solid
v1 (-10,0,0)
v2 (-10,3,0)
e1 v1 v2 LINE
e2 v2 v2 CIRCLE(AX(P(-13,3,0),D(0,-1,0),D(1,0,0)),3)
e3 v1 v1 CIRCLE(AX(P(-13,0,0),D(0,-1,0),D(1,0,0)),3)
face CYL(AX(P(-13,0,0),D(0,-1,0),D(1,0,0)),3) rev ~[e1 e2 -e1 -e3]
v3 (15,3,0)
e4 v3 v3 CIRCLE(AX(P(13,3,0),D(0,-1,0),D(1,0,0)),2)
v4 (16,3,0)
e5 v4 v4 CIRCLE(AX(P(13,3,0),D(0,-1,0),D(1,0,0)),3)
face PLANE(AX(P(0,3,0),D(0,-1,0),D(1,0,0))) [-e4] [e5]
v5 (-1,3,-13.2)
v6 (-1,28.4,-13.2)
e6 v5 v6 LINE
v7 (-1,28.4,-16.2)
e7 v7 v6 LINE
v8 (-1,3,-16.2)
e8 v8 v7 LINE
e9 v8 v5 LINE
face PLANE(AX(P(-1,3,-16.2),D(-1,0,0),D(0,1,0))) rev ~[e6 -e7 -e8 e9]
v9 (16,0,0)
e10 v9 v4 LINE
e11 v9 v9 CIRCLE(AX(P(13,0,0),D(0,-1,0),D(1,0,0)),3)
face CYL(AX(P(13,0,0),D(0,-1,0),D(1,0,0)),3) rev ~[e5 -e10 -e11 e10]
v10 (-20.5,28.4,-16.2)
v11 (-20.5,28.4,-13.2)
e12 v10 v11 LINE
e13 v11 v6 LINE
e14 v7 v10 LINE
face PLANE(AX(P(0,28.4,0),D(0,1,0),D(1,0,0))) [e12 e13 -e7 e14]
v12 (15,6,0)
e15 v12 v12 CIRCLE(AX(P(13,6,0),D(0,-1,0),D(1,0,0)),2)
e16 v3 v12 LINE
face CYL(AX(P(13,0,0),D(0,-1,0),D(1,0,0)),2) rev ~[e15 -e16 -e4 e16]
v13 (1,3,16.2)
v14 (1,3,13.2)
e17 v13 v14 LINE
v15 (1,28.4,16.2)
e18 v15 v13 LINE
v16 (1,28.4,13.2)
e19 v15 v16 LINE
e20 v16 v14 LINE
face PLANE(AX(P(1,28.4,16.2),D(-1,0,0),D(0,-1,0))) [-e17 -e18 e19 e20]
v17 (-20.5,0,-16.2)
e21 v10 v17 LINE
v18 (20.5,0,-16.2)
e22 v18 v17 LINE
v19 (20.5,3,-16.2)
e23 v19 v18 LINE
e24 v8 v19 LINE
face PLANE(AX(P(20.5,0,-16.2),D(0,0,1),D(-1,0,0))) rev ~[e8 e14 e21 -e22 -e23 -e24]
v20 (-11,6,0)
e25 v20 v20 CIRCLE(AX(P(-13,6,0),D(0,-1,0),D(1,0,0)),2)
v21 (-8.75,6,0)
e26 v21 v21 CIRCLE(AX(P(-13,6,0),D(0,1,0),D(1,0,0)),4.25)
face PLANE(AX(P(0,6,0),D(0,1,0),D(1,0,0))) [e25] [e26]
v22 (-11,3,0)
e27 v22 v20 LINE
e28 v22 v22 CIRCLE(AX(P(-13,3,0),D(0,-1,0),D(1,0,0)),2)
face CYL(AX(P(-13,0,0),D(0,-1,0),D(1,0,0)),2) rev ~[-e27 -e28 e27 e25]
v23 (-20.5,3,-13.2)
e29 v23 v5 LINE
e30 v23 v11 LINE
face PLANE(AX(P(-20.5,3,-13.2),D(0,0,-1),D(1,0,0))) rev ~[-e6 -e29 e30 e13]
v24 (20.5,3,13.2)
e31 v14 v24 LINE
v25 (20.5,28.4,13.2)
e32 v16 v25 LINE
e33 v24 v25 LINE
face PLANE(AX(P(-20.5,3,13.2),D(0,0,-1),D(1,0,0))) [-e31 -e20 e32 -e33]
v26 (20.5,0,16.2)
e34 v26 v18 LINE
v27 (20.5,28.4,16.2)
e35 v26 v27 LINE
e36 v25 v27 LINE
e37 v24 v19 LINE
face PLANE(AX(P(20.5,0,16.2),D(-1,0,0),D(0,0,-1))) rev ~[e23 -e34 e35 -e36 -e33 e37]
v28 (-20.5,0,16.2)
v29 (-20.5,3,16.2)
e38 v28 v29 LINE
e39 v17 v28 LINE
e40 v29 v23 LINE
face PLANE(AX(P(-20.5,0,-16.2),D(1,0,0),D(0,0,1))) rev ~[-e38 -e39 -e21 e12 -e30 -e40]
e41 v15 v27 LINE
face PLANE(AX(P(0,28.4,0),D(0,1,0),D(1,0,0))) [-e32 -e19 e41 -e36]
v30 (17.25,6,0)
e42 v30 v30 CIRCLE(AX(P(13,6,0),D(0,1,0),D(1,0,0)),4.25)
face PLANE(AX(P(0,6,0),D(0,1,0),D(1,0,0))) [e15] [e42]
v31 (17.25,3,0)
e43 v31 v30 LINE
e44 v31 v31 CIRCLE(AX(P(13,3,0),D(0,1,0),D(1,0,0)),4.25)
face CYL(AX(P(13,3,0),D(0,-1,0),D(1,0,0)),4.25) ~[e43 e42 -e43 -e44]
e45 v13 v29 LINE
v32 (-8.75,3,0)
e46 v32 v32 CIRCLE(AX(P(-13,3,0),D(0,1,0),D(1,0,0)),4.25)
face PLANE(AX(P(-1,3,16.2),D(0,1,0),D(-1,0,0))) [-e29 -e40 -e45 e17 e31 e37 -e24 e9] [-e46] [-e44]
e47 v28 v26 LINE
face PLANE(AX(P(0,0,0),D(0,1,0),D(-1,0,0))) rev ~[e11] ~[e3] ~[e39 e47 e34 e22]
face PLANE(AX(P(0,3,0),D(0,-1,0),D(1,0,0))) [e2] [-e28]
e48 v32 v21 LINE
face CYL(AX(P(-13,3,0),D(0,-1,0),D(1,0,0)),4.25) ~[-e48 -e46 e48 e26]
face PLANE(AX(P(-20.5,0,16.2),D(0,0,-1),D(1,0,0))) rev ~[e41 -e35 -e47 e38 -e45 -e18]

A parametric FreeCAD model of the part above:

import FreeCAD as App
import Part
import Sketcher

V = App.Vector

doc = App.newDocument("Part")
body = doc.addObject("PartDesign::Body", "Body")

sketch1 = doc.addObject("Sketcher::SketchObject", "Sketch")
body.addObject(sketch1)
sketch1.AttachmentSupport = (doc.XZ_Plane, [""])
sketch1.MapMode = "FlatFace"
sketch1.addGeometry([
    Part.LineSegment(V(-20, -16, 0), V(-20, 16, 0)),
    Part.LineSegment(V(-20, 16, 0), V(20, 16, 0)),
    Part.LineSegment(V(20, 16, 0), V(20, -16, 0)),
    Part.LineSegment(V(20, -16, 0), V(-20, -16, 0)),
], False)
sketch1.addConstraint([
    Sketcher.Constraint("Coincident", 0, 2, 1, 1),
    Sketcher.Constraint("Coincident", 1, 2, 2, 1),
    Sketcher.Constraint("Coincident", 2, 2, 3, 1),
    Sketcher.Constraint("Coincident", 3, 2, 0, 1),
    Sketcher.Constraint("Vertical", 0),
    Sketcher.Constraint("Horizontal", 1),
    Sketcher.Constraint("Vertical", 2),
    Sketcher.Constraint("Horizontal", 3),
    Sketcher.Constraint("Symmetric", 0, 2, 2, 2, -1, 1),
    Sketcher.Constraint("DistanceX", 1, 1, 1, 2, 41.0),
    Sketcher.Constraint("DistanceY", 0, 1, 0, 2, 32.4),
])
pad1 = doc.addObject("PartDesign::Pad", "Pad")
body.addObject(pad1)
pad1.Profile = sketch1
pad1.Length = 3
pad1.Reversed = True

sketch2 = doc.addObject("Sketcher::SketchObject", "Sketch001")
body.addObject(sketch2)
sketch2.AttachmentSupport = (doc.XZ_Plane, [""])
sketch2.MapMode = "FlatFace"
sketch2.AttachmentOffset = App.Placement(V(0, 0, -3), App.Rotation())
sketch2.addGeometry([
    Part.LineSegment(V(-20.5, 13.2, 0), V(-20.5, 16.2, 0)),
    Part.LineSegment(V(-20.5, 16.2, 0), V(20.5, 16.2, 0)),
    Part.LineSegment(V(20.5, 16.2, 0), V(20.5, 13.2, 0)),
    Part.LineSegment(V(20.5, 13.2, 0), V(-20.5, 13.2, 0)),
    Part.LineSegment(V(-20.5, -16.2, 0), V(-20.5, -13.2, 0)),
    Part.LineSegment(V(-20.5, -13.2, 0), V(20.5, -13.2, 0)),
    Part.LineSegment(V(20.5, -13.2, 0), V(20.5, -16.2, 0)),
    Part.LineSegment(V(20.5, -16.2, 0), V(-20.5, -16.2, 0)),
], False)
sketch2.addConstraint([
    Sketcher.Constraint("Coincident", 0, 2, 1, 1),
    Sketcher.Constraint("Coincident", 1, 2, 2, 1),
    Sketcher.Constraint("Coincident", 2, 2, 3, 1),
    Sketcher.Constraint("Coincident", 3, 2, 0, 1),
    Sketcher.Constraint("Coincident", 4, 2, 5, 1),
    Sketcher.Constraint("Coincident", 5, 2, 6, 1),
    Sketcher.Constraint("Coincident", 6, 2, 7, 1),
    Sketcher.Constraint("Coincident", 7, 2, 4, 1),
    Sketcher.Constraint("Vertical", 0),
    Sketcher.Constraint("Horizontal", 1),
    Sketcher.Constraint("Vertical", 2),
    Sketcher.Constraint("Horizontal", 3),
    Sketcher.Constraint("Vertical", 4),
    Sketcher.Constraint("Horizontal", 5),
    Sketcher.Constraint("Vertical", 6),
    Sketcher.Constraint("Horizontal", 7),
    Sketcher.Constraint("Symmetric", 2, 2, 4, 2, -1, 1),
    Sketcher.Constraint("Symmetric", 0, 2, 6, 2, -1, 1),
    Sketcher.Constraint("Vertical", 3, 2, 4, 2),
    Sketcher.Constraint("DistanceY", 0, 1, 0, 2, 3.0),
    Sketcher.Constraint("DistanceX", 1, 1, 1, 2, 41.0),
    Sketcher.Constraint("DistanceY", -1, 1, 0, 2, 16.2),
])
pad2 = doc.addObject("PartDesign::Pad", "Pad001")
body.addObject(pad2)
pad2.Profile = sketch2
pad2.Length = 25.4
pad2.Reversed = True

sketch3 = doc.addObject("Sketcher::SketchObject", "Sketch002")
body.addObject(sketch3)
sketch3.AttachmentSupport = (doc.XY_Plane, [""])
sketch3.MapMode = "FlatFace"
sketch3.AttachmentOffset = App.Placement(V(0, 0, -16.2), App.Rotation())
sketch3.addGeometry([
    Part.LineSegment(V(20, 3, 0), V(-1, 3, 0)),
    Part.LineSegment(V(-1, 3, 0), V(-1, 28, 0)),
    Part.LineSegment(V(-1, 28, 0), V(20, 28, 0)),
    Part.LineSegment(V(20, 28, 0), V(20, 3, 0)),
], False)
sketch3.addConstraint([
    Sketcher.Constraint("Coincident", 0, 2, 1, 1),
    Sketcher.Constraint("Coincident", 1, 2, 2, 1),
    Sketcher.Constraint("Coincident", 2, 2, 3, 1),
    Sketcher.Constraint("Coincident", 3, 2, 0, 1),
    Sketcher.Constraint("Horizontal", 0),
    Sketcher.Constraint("Vertical", 1),
    Sketcher.Constraint("Horizontal", 2),
    Sketcher.Constraint("Vertical", 3),
    Sketcher.Constraint("DistanceX", 0, 2, 0, 1, 21.5),
    Sketcher.Constraint("DistanceY", 1, 1, 1, 2, 25.4),
    Sketcher.Constraint("DistanceX", 0, 2, -1, 1, 1.0),
    Sketcher.Constraint("DistanceY", -1, 1, 0, 2, 3.0),
])
pocket1 = doc.addObject("PartDesign::Pocket", "Pocket")
body.addObject(pocket1)
pocket1.Profile = sketch3
pocket1.Length = 3
pocket1.Reversed = True

sketch4 = doc.addObject("Sketcher::SketchObject", "Sketch003")
body.addObject(sketch4)
sketch4.AttachmentSupport = (doc.XY_Plane, [""])
sketch4.MapMode = "FlatFace"
sketch4.AttachmentOffset = App.Placement(V(0, 0, 16.2), App.Rotation())
sketch4.addGeometry([
    Part.LineSegment(V(1, 3, 0), V(1, 28, 0)),
    Part.LineSegment(V(1, 28, 0), V(-20, 28, 0)),
    Part.LineSegment(V(-20, 28, 0), V(-20, 3, 0)),
    Part.LineSegment(V(-20, 3, 0), V(1, 3, 0)),
], False)
sketch4.addConstraint([
    Sketcher.Constraint("Coincident", 0, 2, 1, 1),
    Sketcher.Constraint("Coincident", 1, 2, 2, 1),
    Sketcher.Constraint("Coincident", 2, 2, 3, 1),
    Sketcher.Constraint("Coincident", 3, 2, 0, 1),
    Sketcher.Constraint("Vertical", 0),
    Sketcher.Constraint("Horizontal", 1),
    Sketcher.Constraint("Vertical", 2),
    Sketcher.Constraint("Horizontal", 3),
    Sketcher.Constraint("DistanceX", 1, 2, 1, 1, 21.5),
    Sketcher.Constraint("DistanceY", 0, 1, 0, 2, 25.4),
    Sketcher.Constraint("DistanceX", -1, 1, 0, 2, 1.0),
    Sketcher.Constraint("DistanceY", -1, 1, 2, 2, 3.0),
])
pocket2 = doc.addObject("PartDesign::Pocket", "Pocket001")
body.addObject(pocket2)
pocket2.Profile = sketch4
pocket2.Length = 3

sketch5 = doc.addObject("Sketcher::SketchObject", "Sketch004")
body.addObject(sketch5)
sketch5.AttachmentSupport = (doc.XZ_Plane, [""])
sketch5.MapMode = "FlatFace"
sketch5.AttachmentOffset = App.Placement(V(0, 0, -3), App.Rotation())
sketch5.addGeometry([
    Part.Circle(V(13, 0, 0), V(0, 0, 1), 4.2),
    Part.Circle(V(-13, 0, 0), V(0, 0, 1), 4.2),
], False)
sketch5.addConstraint([
    Sketcher.Constraint("Equal", 0, 1),
    Sketcher.Constraint("Symmetric", 0, 3, 1, 3, -1, 1),
    Sketcher.Constraint("PointOnObject", 0, 3, -1),
    Sketcher.Constraint("Diameter", 0, 8.5),
    Sketcher.Constraint("DistanceX", -1, 1, 0, 3, 13.0),
])
pad3 = doc.addObject("PartDesign::Pad", "Pad002")
body.addObject(pad3)
pad3.Profile = sketch5
pad3.Length = 3
pad3.Reversed = True

sketch6 = doc.addObject("Sketcher::SketchObject", "Sketch005")
body.addObject(sketch6)
sketch6.AttachmentSupport = (doc.XZ_Plane, [""])
sketch6.MapMode = "FlatFace"
sketch6.addGeometry([
    Part.Circle(V(-13, 0, 0), V(0, 0, 1), 2),
    Part.Circle(V(13, 0, 0), V(0, 0, 1), 2),
], False)
sketch6.addConstraint([
    Sketcher.Constraint("Equal", 0, 1),
    Sketcher.Constraint("Symmetric", 0, 3, 1, 3, -1, 1),
    Sketcher.Constraint("PointOnObject", 0, 3, -1),
    Sketcher.Constraint("Diameter", 0, 4.0),
    Sketcher.Constraint("DistanceX", 0, 3, -1, 1, 13.0),
])
pocket3 = doc.addObject("PartDesign::Pocket", "Pocket002")
body.addObject(pocket3)
pocket3.Profile = sketch6
pocket3.Length = 6

sketch7 = doc.addObject("Sketcher::SketchObject", "Sketch006")
body.addObject(sketch7)
sketch7.AttachmentSupport = (doc.XZ_Plane, [""])
sketch7.MapMode = "FlatFace"
sketch7.addGeometry([
    Part.Circle(V(-13, 0, 0), V(0, 0, 1), 3),
    Part.Circle(V(13, 0, 0), V(0, 0, 1), 3),
], False)
sketch7.addConstraint([
    Sketcher.Constraint("Equal", 0, 1),
    Sketcher.Constraint("Symmetric", 0, 3, 1, 3, -1, 1),
    Sketcher.Constraint("PointOnObject", 0, 3, -1),
    Sketcher.Constraint("Diameter", 0, 6.0),
    Sketcher.Constraint("DistanceX", 0, 3, -1, 1, 13.0),
])
pocket4 = doc.addObject("PartDesign::Pocket", "Pocket003")
body.addObject(pocket4)
pocket4.Profile = sketch7
pocket4.Length = 3

doc.recompute()
